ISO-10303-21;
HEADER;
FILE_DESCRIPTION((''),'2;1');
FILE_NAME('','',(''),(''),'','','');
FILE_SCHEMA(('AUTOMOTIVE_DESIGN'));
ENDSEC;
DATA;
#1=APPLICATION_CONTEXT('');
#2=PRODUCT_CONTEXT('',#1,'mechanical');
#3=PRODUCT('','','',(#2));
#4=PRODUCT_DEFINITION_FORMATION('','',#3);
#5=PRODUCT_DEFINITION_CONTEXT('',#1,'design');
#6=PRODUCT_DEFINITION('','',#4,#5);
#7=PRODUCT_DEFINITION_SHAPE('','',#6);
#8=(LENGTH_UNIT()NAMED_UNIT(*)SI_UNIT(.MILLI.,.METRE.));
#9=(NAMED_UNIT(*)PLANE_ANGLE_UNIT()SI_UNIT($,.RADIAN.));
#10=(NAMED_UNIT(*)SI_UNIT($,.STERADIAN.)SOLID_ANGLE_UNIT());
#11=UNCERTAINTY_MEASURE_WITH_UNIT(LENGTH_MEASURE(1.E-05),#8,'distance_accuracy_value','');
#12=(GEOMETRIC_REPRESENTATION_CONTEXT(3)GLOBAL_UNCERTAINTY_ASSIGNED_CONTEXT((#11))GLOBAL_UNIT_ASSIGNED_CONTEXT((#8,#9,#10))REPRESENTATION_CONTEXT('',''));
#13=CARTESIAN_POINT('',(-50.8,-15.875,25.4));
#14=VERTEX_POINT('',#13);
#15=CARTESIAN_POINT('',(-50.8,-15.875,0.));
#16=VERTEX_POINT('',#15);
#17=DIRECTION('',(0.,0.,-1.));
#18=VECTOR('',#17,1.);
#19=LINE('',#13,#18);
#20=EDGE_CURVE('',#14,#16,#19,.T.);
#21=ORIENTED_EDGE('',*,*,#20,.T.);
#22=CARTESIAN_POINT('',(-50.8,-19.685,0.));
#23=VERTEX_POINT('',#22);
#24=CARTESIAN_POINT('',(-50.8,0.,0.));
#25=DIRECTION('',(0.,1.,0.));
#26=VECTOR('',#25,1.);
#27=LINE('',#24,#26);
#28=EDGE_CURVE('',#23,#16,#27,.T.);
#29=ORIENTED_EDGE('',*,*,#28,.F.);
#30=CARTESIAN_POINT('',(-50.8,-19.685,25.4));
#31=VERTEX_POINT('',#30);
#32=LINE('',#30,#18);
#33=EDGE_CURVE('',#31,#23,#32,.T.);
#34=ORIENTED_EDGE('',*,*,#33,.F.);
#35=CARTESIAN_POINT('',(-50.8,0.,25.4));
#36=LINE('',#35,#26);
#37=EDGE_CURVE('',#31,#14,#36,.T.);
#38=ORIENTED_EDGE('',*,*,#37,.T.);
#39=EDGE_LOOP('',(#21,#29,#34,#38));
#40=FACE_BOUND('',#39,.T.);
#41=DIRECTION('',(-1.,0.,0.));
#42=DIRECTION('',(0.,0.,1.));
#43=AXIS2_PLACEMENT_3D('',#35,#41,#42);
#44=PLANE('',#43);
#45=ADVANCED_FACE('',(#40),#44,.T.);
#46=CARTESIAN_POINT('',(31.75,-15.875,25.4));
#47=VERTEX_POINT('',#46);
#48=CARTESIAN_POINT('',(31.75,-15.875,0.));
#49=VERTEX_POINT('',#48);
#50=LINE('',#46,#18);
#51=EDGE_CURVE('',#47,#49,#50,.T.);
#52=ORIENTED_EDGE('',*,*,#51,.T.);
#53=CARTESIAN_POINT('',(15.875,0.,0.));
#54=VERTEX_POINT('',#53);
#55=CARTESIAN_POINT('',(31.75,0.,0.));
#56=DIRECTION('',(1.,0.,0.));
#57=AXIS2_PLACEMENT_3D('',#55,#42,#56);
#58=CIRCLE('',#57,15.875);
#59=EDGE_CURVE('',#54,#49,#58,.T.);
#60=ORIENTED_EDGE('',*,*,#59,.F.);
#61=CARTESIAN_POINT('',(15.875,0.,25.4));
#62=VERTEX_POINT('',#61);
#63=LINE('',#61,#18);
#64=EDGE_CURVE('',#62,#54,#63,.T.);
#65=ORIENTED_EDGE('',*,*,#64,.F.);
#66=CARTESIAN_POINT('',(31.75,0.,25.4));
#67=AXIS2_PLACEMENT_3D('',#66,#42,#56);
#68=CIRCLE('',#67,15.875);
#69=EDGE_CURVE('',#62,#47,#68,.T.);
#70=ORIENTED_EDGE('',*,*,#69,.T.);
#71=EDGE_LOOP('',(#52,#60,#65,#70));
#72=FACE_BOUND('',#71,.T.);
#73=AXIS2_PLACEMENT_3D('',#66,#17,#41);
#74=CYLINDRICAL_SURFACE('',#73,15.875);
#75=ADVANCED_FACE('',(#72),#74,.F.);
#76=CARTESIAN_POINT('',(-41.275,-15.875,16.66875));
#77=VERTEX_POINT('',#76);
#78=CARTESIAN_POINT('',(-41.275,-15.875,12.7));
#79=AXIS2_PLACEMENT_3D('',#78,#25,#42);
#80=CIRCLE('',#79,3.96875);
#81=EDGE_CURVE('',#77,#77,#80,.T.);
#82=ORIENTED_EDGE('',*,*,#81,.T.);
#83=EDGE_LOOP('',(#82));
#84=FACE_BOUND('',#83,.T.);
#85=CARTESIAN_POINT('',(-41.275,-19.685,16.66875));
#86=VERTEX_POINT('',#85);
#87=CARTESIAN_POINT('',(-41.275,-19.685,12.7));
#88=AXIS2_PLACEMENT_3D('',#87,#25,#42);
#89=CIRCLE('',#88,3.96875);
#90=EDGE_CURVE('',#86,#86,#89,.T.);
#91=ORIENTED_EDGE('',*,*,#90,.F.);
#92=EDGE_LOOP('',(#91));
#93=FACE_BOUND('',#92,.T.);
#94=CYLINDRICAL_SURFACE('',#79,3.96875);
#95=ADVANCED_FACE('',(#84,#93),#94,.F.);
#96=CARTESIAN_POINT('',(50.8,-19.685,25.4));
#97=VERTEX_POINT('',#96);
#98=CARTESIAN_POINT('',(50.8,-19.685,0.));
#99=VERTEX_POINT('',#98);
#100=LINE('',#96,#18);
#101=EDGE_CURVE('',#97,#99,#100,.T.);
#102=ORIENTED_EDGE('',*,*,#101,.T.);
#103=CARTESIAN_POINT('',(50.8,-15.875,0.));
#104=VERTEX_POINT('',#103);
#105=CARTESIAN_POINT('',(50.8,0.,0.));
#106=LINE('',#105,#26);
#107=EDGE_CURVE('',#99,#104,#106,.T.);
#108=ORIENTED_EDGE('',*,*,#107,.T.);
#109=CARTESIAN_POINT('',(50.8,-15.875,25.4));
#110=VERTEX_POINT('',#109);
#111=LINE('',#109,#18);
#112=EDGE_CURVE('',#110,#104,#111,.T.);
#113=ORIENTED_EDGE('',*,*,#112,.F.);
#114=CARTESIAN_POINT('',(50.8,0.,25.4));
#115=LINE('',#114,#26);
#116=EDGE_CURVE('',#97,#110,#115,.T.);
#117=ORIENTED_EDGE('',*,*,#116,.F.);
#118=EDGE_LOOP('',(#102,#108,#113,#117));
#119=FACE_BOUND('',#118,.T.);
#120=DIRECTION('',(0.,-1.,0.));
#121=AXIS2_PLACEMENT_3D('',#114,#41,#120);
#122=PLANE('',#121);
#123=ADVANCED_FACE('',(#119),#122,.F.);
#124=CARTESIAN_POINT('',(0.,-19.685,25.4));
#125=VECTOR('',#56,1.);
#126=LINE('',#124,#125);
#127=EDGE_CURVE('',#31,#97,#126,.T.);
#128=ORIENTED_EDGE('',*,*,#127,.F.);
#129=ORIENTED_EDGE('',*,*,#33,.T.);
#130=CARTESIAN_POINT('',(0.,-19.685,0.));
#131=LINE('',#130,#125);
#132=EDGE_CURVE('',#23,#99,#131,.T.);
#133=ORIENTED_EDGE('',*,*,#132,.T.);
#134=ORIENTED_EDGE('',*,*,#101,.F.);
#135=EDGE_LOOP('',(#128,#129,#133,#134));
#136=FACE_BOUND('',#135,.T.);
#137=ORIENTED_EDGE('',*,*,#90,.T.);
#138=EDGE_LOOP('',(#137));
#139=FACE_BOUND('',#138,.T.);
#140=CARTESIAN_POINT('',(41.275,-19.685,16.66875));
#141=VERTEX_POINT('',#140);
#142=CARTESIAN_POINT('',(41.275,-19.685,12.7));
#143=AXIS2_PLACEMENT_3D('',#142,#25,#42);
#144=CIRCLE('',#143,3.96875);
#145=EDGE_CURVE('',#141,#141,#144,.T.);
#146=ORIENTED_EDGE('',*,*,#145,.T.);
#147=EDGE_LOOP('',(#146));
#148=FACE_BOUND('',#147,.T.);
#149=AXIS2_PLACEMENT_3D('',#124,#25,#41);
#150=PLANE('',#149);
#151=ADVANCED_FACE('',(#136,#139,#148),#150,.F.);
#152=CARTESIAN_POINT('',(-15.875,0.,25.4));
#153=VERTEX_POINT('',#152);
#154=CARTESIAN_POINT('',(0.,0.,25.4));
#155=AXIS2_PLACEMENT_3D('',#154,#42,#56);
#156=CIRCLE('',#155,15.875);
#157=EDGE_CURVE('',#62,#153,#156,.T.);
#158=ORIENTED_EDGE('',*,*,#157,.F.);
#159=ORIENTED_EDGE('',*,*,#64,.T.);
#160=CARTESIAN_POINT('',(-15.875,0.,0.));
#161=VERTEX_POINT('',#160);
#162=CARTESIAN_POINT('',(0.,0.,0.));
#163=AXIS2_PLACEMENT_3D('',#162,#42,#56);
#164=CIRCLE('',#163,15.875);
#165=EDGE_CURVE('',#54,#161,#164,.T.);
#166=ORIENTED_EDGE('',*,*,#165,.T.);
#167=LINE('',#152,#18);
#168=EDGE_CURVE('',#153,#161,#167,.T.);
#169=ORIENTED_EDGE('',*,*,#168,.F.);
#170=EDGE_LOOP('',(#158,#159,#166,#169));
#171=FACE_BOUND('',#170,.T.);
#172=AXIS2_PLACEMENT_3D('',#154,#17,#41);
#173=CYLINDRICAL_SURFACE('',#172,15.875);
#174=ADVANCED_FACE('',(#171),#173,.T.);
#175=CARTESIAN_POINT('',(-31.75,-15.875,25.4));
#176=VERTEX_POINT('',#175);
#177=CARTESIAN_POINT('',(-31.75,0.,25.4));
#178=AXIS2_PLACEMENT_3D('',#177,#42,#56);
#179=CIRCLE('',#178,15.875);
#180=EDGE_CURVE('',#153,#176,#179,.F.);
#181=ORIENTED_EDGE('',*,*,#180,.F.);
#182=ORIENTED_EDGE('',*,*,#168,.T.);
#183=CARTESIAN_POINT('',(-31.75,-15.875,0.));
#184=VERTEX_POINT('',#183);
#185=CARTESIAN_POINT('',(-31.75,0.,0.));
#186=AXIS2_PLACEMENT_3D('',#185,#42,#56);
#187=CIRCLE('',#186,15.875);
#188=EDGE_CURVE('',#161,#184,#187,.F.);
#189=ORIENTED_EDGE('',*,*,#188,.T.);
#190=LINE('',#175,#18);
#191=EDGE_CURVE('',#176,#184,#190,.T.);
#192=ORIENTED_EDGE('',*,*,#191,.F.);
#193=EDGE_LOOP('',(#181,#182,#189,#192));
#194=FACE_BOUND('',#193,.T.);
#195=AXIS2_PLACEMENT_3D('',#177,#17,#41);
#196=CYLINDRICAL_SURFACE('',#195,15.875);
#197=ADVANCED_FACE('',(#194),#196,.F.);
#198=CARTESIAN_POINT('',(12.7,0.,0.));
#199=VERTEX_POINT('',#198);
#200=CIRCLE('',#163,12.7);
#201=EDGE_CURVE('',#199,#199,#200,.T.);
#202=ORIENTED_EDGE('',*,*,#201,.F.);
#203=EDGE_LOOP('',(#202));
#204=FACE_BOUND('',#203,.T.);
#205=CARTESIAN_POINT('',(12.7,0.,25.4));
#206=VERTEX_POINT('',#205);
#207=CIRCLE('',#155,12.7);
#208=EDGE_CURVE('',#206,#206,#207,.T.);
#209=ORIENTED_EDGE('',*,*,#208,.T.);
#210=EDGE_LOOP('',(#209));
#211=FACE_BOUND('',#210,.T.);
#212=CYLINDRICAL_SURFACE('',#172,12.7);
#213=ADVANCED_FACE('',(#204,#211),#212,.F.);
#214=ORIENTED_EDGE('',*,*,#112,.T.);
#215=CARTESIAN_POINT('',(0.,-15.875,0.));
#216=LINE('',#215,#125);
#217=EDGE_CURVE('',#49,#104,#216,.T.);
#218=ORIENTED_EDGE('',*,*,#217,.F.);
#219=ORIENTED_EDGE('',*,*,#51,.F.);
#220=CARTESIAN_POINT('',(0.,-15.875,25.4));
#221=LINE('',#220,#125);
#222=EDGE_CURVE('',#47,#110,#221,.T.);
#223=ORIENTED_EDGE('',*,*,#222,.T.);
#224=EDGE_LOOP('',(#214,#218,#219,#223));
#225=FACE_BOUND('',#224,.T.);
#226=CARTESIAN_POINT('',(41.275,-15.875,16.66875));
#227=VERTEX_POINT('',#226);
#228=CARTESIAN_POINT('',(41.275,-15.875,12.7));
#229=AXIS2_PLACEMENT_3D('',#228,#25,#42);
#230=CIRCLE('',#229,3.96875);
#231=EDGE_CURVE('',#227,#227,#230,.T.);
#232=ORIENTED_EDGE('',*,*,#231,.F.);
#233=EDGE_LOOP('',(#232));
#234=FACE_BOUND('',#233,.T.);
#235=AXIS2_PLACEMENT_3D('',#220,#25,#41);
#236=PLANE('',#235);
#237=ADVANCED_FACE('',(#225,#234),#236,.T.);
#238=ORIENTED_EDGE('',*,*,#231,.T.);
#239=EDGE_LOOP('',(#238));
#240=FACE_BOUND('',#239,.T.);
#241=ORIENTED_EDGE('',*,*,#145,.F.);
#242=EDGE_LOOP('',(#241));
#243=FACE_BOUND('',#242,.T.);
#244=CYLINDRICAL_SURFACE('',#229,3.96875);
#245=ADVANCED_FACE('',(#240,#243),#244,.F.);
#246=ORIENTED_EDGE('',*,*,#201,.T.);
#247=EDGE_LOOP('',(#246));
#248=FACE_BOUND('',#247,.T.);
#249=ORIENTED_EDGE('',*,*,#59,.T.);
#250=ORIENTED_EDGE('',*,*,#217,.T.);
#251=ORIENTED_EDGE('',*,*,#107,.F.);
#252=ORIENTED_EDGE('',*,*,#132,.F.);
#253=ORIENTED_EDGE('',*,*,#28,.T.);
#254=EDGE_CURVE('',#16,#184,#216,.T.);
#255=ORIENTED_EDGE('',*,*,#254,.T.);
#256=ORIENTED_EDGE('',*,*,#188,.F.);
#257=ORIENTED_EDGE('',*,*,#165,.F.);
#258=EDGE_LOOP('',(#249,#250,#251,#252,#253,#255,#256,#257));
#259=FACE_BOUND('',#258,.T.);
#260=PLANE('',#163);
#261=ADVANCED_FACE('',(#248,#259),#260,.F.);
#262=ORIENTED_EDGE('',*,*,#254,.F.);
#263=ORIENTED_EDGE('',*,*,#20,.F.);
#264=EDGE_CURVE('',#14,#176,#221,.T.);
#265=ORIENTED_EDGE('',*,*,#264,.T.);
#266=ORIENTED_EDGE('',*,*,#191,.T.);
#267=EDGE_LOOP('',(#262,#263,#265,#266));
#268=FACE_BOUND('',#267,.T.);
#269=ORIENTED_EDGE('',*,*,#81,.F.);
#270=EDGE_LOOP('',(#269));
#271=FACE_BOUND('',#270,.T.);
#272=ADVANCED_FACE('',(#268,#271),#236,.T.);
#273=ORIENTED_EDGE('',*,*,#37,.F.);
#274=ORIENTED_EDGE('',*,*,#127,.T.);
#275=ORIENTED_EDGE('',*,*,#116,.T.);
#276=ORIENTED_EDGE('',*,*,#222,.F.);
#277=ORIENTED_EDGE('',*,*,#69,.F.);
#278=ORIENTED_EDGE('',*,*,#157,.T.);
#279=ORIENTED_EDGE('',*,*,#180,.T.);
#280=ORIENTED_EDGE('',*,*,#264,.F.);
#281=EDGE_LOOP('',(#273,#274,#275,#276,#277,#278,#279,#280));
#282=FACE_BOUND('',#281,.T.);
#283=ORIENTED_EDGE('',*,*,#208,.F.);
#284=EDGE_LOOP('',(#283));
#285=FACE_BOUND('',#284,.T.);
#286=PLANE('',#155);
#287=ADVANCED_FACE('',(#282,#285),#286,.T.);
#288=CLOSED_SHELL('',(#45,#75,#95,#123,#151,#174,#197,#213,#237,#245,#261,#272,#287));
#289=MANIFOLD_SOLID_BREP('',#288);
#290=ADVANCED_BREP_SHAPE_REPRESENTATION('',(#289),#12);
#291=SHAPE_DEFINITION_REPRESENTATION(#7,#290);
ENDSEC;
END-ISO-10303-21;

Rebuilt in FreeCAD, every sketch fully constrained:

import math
import FreeCAD as App
import Part
import Sketcher

V = App.Vector
Q = App.Units.Quantity

doc = App.newDocument("Part")
body = doc.addObject("PartDesign::Body", "Body")

# Sketch on XY plane
sketch1 = body.newObject("Sketcher::SketchObject", "Sketch")
sketch1.AttachmentSupport = (doc.getObject("XY_Plane"), [""])
sketch1.MapMode = "FlatFace"
sketch1.addGeometry(Part.ArcOfCircle(Part.Circle(V(0, 0, 0), V(0, 0, 1), 15.9), math.radians(0), math.radians(180)), False)
sketch1.addGeometry(Part.ArcOfCircle(Part.Circle(V(-31.8, 0, 0), V(0, 0, 1), 15.9), math.radians(-90), math.radians(0)), False)
sketch1.addGeometry(Part.LineSegment(V(-31.8, -15.9, 0), V(-50.8, -15.9, 0)), False)
sketch1.addGeometry(Part.LineSegment(V(-50.8, -15.9, 0), V(-50.8, -19.7, 0)), False)
sketch1.addGeometry(Part.LineSegment(V(-50.8, -19.7, 0), V(50.8, -19.7, 0)), False)
sketch1.addGeometry(Part.LineSegment(V(50.8, -19.7, 0), V(50.8, -15.9, 0)), False)
sketch1.addGeometry(Part.LineSegment(V(50.8, -15.9, 0), V(31.8, -15.9, 0)), False)
sketch1.addGeometry(Part.ArcOfCircle(Part.Circle(V(31.8, 0, 0), V(0, 0, 1), 15.9), math.radians(-180), math.radians(-90)), False)
sketch1.addGeometry(Part.Circle(V(0, 0, 0), V(0, 0, 1), 12.7), False)
sketch1.addConstraint(Sketcher.Constraint("Tangent", 0, 2, 1, 2))
sketch1.addConstraint(Sketcher.Constraint("Tangent", 1, 1, 2, 1))
sketch1.addConstraint(Sketcher.Constraint("Coincident", 2, 2, 3, 1))
sketch1.addConstraint(Sketcher.Constraint("Coincident", 3, 2, 4, 1))
sketch1.addConstraint(Sketcher.Constraint("Coincident", 4, 2, 5, 1))
sketch1.addConstraint(Sketcher.Constraint("Coincident", 5, 2, 6, 1))
sketch1.addConstraint(Sketcher.Constraint("Tangent", 6, 2, 7, 2))
sketch1.addConstraint(Sketcher.Constraint("Tangent", 7, 1, 0, 1))
sketch1.addConstraint(Sketcher.Constraint("Horizontal", 2))
sketch1.addConstraint(Sketcher.Constraint("Vertical", 3))
sketch1.addConstraint(Sketcher.Constraint("Horizontal", 4))
sketch1.addConstraint(Sketcher.Constraint("Vertical", 5))
sketch1.addConstraint(Sketcher.Constraint("Horizontal", 6))
sketch1.addConstraint(Sketcher.Constraint("Coincident", 0, 3, -1, 1))
sketch1.addConstraint(Sketcher.Constraint("Coincident", 8, 3, -1, 1))
sketch1.addConstraint(Sketcher.Constraint("Equal", 0, 1))
sketch1.addConstraint(Sketcher.Constraint("Equal", 1, 7))
sketch1.addConstraint(Sketcher.Constraint("Symmetric", 2, 2, 5, 2, -2))
sketch1.addConstraint(Sketcher.Constraint("PointOnObject", 1, 3, -1))
sketch1.addConstraint(Sketcher.Constraint("Diameter", 8, Q("1 in")))
sketch1.addConstraint(Sketcher.Constraint("DistanceX", 4, 1, 4, 2, Q("4 in")))
sketch1.addConstraint(Sketcher.Constraint("Radius", 0, Q("0.625 in")))
sketch1.addConstraint(Sketcher.Constraint("DistanceY", 3, 2, 3, 1, Q("0.15 in")))
pad1 = body.newObject("PartDesign::Pad", "Pad")
pad1.Profile = sketch1
pad1.Length = Q("1 in")

# Sketch on XZ plane
sketch2 = body.newObject("Sketcher::SketchObject", "Sketch001")
sketch2.AttachmentSupport = (doc.getObject("XZ_Plane"), [""])
sketch2.MapMode = "FlatFace"
sketch2.AttachmentOffset = App.Placement(V(0, 0, 0.625 * 25.4), App.Rotation())
sketch2.addGeometry(Part.Circle(V(-41.3, 12.7, 0), V(0, 0, 1), 4), False)
sketch2.addConstraint(Sketcher.Constraint("Diameter", 0, Q("0.3125 in")))
sketch2.addConstraint(Sketcher.Constraint("DistanceY", -1, 1, 0, 3, Q("0.5 in")))
sketch2.addConstraint(Sketcher.Constraint("DistanceX", 0, 3, -1, 1, Q("1.625 in")))
doc.recompute()
hole = body.newObject("PartDesign::Hole", "Hole")
hole.Profile = sketch2
hole.ThreadType = "None"
hole.Diameter = Q("0.3125 in")
hole.DepthType = "ThroughAll"
hole.Reversed = True
doc.recompute()

mirrored = body.newObject("PartDesign::Mirrored", "Mirrored")
mirrored.Originals = [hole]
mirrored.MirrorPlane = (doc.getObject("YZ_Plane"), [""])
body.Tip = mirrored

doc.recompute()
